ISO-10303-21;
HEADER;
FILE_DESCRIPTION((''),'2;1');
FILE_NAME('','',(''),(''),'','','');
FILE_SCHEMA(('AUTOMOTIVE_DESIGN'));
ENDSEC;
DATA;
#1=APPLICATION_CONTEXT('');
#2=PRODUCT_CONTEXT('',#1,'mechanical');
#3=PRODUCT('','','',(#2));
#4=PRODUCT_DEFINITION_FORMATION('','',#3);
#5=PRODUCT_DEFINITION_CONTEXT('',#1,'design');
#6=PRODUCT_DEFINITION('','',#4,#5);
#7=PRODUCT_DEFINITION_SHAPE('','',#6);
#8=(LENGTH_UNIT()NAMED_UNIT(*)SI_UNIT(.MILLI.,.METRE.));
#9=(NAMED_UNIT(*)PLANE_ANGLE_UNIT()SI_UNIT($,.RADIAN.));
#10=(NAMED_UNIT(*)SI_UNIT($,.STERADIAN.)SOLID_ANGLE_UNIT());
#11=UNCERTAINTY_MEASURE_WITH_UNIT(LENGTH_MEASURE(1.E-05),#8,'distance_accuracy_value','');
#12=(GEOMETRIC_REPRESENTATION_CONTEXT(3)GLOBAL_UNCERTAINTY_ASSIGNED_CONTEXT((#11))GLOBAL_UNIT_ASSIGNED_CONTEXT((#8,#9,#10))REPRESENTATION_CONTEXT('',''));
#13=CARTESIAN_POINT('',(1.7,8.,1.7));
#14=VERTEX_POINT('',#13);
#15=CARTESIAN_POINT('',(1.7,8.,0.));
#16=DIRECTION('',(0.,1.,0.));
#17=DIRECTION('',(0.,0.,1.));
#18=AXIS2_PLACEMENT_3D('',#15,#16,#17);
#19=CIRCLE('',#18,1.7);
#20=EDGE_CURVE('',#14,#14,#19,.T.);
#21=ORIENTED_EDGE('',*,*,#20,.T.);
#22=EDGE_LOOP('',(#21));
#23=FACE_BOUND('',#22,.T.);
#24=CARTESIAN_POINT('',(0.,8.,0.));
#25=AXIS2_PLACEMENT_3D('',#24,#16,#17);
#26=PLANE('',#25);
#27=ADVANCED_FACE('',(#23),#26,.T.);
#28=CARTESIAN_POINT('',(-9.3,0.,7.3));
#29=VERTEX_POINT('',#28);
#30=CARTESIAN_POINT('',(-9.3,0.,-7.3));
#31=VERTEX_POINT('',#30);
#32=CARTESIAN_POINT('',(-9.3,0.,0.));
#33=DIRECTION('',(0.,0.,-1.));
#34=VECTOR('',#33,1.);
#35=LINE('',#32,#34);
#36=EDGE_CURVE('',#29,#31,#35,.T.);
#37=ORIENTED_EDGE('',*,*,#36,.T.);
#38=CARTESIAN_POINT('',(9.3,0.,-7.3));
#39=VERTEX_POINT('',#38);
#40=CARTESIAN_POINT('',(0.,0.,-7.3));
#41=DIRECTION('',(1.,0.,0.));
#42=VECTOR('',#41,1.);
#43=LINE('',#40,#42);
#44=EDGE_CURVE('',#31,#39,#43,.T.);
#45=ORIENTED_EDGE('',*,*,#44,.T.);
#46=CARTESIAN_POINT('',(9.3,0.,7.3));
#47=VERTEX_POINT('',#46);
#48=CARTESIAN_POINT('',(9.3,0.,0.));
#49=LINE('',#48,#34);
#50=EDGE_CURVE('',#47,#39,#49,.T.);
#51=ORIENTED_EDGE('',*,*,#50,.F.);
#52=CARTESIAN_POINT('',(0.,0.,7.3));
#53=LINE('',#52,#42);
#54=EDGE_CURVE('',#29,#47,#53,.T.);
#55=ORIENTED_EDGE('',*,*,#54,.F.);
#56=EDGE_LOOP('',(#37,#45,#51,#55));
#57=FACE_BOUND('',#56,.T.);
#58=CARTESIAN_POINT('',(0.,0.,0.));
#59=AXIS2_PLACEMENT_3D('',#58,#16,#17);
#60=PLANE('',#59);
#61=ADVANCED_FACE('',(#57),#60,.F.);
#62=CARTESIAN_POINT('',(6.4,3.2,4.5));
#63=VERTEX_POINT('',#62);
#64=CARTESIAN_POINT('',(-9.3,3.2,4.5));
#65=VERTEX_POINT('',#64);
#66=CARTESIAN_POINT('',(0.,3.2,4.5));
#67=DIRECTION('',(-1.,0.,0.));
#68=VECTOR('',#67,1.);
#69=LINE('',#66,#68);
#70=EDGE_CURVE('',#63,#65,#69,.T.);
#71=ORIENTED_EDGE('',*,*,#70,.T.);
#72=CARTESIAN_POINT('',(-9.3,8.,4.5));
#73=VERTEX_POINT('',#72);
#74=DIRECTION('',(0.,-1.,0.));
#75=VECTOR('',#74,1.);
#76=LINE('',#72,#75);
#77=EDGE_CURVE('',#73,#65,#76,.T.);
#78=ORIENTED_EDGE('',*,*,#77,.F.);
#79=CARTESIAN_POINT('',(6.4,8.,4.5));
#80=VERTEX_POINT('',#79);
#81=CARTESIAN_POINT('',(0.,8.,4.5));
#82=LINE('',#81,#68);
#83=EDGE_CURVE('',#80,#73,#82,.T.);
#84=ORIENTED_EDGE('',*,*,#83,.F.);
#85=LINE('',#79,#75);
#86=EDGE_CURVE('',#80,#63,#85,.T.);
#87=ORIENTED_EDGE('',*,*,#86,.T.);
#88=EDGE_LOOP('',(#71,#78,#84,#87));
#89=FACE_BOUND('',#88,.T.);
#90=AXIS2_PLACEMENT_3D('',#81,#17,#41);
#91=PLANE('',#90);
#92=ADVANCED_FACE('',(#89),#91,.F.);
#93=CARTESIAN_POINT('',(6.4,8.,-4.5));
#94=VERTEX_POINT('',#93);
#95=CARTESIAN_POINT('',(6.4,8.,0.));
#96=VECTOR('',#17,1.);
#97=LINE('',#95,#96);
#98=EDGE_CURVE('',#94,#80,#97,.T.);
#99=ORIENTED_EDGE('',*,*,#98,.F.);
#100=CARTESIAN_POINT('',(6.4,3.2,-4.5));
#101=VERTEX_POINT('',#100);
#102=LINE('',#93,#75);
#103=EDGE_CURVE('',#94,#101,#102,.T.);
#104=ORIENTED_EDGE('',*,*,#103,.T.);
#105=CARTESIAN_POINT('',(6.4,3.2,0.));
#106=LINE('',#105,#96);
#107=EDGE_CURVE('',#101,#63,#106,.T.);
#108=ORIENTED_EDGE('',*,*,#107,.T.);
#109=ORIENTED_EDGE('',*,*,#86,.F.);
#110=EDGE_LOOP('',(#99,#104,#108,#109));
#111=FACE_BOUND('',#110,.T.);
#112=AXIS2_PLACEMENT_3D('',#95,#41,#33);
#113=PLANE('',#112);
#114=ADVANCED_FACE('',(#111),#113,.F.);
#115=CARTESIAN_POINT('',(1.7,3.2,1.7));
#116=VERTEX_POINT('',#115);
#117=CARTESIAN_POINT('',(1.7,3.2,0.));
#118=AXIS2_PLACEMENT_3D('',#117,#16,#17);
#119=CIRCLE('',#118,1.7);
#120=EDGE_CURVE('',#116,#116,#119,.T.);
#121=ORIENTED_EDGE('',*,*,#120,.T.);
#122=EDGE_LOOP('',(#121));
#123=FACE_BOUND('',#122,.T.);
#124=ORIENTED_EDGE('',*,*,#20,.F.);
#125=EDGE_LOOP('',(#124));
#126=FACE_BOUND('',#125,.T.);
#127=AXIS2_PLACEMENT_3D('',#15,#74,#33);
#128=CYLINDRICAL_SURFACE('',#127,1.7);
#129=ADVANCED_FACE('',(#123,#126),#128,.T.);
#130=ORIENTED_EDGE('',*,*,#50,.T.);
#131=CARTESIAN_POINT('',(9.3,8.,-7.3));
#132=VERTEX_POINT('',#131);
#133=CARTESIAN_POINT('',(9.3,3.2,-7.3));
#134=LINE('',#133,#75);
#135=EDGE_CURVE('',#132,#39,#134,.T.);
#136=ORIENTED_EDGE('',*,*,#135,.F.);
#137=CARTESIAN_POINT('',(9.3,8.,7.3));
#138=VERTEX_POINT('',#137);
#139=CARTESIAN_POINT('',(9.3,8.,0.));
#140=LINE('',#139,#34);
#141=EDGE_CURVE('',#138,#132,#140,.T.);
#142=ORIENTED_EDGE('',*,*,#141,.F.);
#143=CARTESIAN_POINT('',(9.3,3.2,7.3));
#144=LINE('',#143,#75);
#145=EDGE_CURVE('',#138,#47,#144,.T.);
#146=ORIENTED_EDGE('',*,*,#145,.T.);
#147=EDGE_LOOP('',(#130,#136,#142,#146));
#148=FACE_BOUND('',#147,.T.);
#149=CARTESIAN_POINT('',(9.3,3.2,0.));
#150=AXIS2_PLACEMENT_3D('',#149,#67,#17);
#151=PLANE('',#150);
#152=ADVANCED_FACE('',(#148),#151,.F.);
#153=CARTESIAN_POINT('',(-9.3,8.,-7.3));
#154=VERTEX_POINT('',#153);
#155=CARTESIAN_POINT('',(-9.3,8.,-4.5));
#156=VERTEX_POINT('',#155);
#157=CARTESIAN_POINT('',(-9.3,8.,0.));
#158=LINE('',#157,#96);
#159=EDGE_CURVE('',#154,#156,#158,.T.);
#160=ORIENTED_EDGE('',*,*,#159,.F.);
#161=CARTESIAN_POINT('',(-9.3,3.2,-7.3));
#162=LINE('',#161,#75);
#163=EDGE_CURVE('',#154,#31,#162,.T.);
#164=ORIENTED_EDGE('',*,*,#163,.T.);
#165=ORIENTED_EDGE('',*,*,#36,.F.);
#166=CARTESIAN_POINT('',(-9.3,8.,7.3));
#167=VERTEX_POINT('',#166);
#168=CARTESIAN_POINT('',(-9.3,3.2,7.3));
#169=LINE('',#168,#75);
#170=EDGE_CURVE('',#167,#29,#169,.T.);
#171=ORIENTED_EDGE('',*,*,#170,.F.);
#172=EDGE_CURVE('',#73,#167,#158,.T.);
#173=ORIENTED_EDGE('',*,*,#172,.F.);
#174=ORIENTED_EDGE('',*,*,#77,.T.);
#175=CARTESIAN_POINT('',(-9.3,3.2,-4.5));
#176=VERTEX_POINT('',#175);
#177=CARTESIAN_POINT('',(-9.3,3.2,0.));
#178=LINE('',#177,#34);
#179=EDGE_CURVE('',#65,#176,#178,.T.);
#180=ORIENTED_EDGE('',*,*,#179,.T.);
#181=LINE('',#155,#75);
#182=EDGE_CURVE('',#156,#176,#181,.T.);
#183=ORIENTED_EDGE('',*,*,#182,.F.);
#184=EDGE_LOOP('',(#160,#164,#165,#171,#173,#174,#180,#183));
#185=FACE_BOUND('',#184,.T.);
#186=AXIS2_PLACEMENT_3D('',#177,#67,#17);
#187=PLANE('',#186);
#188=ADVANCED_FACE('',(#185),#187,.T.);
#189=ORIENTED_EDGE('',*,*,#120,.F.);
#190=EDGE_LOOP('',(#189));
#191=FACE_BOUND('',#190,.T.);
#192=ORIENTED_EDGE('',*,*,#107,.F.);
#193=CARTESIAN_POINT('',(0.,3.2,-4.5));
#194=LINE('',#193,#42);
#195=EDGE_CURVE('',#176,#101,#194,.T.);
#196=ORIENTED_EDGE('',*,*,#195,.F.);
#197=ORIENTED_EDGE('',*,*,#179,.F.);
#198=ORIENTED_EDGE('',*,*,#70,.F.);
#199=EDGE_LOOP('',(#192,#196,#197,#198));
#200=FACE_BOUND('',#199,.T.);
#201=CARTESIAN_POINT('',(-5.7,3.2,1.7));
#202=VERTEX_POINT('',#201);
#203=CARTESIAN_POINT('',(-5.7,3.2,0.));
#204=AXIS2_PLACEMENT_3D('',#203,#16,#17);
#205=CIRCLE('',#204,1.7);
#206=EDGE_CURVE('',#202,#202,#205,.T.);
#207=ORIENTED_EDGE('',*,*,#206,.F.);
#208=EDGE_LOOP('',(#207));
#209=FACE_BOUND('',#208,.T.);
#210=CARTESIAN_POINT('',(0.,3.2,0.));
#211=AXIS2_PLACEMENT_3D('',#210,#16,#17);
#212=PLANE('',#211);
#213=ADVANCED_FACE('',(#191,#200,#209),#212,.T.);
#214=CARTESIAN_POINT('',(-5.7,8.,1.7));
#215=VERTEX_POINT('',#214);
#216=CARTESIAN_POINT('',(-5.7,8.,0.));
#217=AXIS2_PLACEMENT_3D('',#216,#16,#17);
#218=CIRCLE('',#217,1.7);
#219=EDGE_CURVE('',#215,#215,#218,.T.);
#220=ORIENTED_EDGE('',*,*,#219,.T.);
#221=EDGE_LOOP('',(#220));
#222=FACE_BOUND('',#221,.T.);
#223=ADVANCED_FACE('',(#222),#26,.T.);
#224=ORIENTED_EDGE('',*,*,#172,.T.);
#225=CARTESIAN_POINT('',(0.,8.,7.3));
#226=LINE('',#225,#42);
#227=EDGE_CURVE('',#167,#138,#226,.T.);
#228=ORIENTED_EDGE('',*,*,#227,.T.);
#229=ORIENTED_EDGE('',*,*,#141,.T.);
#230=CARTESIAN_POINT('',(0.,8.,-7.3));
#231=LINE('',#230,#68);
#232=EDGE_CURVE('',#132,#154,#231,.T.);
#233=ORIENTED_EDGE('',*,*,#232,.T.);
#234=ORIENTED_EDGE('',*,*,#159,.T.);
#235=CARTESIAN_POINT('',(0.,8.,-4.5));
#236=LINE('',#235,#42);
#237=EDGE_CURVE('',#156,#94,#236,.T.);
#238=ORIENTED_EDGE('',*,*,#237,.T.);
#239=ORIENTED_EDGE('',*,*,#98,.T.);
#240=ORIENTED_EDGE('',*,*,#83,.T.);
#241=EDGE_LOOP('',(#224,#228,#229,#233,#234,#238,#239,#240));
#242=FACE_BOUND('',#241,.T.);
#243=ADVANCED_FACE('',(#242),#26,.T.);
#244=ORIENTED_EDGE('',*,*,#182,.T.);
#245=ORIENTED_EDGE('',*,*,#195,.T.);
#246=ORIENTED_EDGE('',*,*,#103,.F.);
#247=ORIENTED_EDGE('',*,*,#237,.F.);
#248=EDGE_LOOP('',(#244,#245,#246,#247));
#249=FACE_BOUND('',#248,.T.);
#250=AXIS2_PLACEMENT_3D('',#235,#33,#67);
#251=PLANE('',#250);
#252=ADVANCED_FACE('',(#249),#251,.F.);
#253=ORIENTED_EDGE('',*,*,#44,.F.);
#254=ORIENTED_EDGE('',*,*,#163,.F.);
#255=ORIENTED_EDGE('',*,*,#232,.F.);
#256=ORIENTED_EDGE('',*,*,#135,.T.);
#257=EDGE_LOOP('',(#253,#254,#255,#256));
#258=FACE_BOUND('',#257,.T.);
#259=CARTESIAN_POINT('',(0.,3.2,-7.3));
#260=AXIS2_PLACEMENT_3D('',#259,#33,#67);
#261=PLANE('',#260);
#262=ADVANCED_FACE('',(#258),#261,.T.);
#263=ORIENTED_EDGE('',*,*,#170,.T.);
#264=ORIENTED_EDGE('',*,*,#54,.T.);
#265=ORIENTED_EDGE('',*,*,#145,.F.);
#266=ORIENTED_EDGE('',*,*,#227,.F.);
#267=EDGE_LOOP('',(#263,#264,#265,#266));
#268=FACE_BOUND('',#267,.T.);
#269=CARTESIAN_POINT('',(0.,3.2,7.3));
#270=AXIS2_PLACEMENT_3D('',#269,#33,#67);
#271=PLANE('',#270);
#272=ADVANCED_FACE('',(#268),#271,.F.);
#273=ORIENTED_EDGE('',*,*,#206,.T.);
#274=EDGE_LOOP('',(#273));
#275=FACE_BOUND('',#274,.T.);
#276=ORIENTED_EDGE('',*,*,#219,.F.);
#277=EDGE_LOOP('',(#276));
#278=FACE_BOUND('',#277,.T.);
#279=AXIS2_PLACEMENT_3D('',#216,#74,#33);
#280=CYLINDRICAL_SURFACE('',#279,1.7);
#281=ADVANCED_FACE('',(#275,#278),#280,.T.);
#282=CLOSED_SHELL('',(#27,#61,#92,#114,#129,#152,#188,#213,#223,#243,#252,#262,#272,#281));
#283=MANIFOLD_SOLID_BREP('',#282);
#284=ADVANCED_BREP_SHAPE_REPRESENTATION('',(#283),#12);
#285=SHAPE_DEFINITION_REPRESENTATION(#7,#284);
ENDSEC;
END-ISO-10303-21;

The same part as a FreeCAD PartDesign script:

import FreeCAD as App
import Part
import Sketcher

V = App.Vector


def add_polygon(sketch, points):
    """Adds a closed chain of lines whose ends are joined by coincident constraints."""
    first, n = sketch.GeometryCount, len(points)
    for a, b in zip(points, points[1:] + points[:1]):
        sketch.addGeometry(Part.LineSegment(App.Vector(*a, 0), App.Vector(*b, 0)), False)
    for i in range(n):
        sketch.addConstraint(Sketcher.Constraint("Coincident", first + i, 2, first + (i + 1) % n, 1))

doc = App.newDocument("Part")
body = doc.addObject("PartDesign::Body", "Body")

# Sketch on XZ plane
sketch1 = body.newObject("Sketcher::SketchObject", "Sketch")
sketch1.AttachmentSupport = (doc.getObject("XZ_Plane"), [""])
sketch1.MapMode = "FlatFace"
add_polygon(sketch1, [(-9.3, -7.3), (-9.3, 7.3), (9.3, 7.3), (9.3, -7.3)])  # lines 0-3
sketch1.addConstraint(Sketcher.Constraint("Vertical", 0))
sketch1.addConstraint(Sketcher.Constraint("Horizontal", 1))
sketch1.addConstraint(Sketcher.Constraint("Vertical", 2))
sketch1.addConstraint(Sketcher.Constraint("Horizontal", 3))
sketch1.addConstraint(Sketcher.Constraint("Symmetric", 0, 2, 2, 2, -1, 1))
sketch1.addConstraint(Sketcher.Constraint("DistanceX", 1, 1, 1, 2, 18.6))
sketch1.addConstraint(Sketcher.Constraint("DistanceY", 0, 1, 0, 2, 14.6))
pad1 = body.newObject("PartDesign::Pad", "Pad")
pad1.Profile = sketch1
pad1.Length = 3.2
pad1.Reversed = True

# Sketch on XZ plane
sketch2 = body.newObject("Sketcher::SketchObject", "Sketch001")
sketch2.AttachmentSupport = (doc.getObject("XZ_Plane"), [""])
sketch2.MapMode = "FlatFace"
sketch2.AttachmentOffset = App.Placement(V(0, 0, -3.2), App.Rotation())
add_polygon(sketch2, [(-9.3, -7.3), (-9.3, -4.5), (6.4, -4.5), (6.4, 4.5), (-9.3, 4.5), (-9.3, 7.3), (9.3, 7.3), (9.3, -7.3)])  # lines 0-7
sketch2.addGeometry(Part.Circle(V(-5.7, 0, 0), V(0, 0, 1), 1.7), False)  # 8
sketch2.addGeometry(Part.Circle(V(1.7, 0, 0), V(0, 0, 1), 1.7), False)  # 9
sketch2.addConstraint(Sketcher.Constraint("Vertical", 0))
sketch2.addConstraint(Sketcher.Constraint("Horizontal", 1))
sketch2.addConstraint(Sketcher.Constraint("Vertical", 2))
sketch2.addConstraint(Sketcher.Constraint("Horizontal", 3))
sketch2.addConstraint(Sketcher.Constraint("Vertical", 4))
sketch2.addConstraint(Sketcher.Constraint("Horizontal", 5))
sketch2.addConstraint(Sketcher.Constraint("Vertical", 6))
sketch2.addConstraint(Sketcher.Constraint("Horizontal", 7))
sketch2.addConstraint(Sketcher.Constraint("Equal", 8, 9))
sketch2.addConstraint(Sketcher.Constraint("Symmetric", 4, 2, 6, 2, -1, 1))
sketch2.addConstraint(Sketcher.Constraint("Symmetric", 0, 2, 3, 2, -1))
sketch2.addConstraint(Sketcher.Constraint("PointOnObject", 8, 3, -1))
sketch2.addConstraint(Sketcher.Constraint("PointOnObject", 9, 3, -1))
sketch2.addConstraint(Sketcher.Constraint("Diameter", 8, 3.4))
sketch2.addConstraint(Sketcher.Constraint("DistanceY", 2, 1, 2, 2, 9.0))
sketch2.addConstraint(Sketcher.Constraint("DistanceX", 1, 1, 1, 2, 15.7))
sketch2.addConstraint(Sketcher.Constraint("DistanceX", 5, 1, 5, 2, 18.6))
sketch2.addConstraint(Sketcher.Constraint("DistanceY", 0, 1, 0, 2, 2.8))
sketch2.addConstraint(Sketcher.Constraint("DistanceX", 0, 2, 9, 3, 11.0))
sketch2.addConstraint(Sketcher.Constraint("DistanceX", 8, 3, 5, 2, 15.0))
pad2 = body.newObject("PartDesign::Pad", "Pad001")
pad2.Profile = sketch2
pad2.Length = 4.8
pad2.Reversed = True

doc.recompute()
